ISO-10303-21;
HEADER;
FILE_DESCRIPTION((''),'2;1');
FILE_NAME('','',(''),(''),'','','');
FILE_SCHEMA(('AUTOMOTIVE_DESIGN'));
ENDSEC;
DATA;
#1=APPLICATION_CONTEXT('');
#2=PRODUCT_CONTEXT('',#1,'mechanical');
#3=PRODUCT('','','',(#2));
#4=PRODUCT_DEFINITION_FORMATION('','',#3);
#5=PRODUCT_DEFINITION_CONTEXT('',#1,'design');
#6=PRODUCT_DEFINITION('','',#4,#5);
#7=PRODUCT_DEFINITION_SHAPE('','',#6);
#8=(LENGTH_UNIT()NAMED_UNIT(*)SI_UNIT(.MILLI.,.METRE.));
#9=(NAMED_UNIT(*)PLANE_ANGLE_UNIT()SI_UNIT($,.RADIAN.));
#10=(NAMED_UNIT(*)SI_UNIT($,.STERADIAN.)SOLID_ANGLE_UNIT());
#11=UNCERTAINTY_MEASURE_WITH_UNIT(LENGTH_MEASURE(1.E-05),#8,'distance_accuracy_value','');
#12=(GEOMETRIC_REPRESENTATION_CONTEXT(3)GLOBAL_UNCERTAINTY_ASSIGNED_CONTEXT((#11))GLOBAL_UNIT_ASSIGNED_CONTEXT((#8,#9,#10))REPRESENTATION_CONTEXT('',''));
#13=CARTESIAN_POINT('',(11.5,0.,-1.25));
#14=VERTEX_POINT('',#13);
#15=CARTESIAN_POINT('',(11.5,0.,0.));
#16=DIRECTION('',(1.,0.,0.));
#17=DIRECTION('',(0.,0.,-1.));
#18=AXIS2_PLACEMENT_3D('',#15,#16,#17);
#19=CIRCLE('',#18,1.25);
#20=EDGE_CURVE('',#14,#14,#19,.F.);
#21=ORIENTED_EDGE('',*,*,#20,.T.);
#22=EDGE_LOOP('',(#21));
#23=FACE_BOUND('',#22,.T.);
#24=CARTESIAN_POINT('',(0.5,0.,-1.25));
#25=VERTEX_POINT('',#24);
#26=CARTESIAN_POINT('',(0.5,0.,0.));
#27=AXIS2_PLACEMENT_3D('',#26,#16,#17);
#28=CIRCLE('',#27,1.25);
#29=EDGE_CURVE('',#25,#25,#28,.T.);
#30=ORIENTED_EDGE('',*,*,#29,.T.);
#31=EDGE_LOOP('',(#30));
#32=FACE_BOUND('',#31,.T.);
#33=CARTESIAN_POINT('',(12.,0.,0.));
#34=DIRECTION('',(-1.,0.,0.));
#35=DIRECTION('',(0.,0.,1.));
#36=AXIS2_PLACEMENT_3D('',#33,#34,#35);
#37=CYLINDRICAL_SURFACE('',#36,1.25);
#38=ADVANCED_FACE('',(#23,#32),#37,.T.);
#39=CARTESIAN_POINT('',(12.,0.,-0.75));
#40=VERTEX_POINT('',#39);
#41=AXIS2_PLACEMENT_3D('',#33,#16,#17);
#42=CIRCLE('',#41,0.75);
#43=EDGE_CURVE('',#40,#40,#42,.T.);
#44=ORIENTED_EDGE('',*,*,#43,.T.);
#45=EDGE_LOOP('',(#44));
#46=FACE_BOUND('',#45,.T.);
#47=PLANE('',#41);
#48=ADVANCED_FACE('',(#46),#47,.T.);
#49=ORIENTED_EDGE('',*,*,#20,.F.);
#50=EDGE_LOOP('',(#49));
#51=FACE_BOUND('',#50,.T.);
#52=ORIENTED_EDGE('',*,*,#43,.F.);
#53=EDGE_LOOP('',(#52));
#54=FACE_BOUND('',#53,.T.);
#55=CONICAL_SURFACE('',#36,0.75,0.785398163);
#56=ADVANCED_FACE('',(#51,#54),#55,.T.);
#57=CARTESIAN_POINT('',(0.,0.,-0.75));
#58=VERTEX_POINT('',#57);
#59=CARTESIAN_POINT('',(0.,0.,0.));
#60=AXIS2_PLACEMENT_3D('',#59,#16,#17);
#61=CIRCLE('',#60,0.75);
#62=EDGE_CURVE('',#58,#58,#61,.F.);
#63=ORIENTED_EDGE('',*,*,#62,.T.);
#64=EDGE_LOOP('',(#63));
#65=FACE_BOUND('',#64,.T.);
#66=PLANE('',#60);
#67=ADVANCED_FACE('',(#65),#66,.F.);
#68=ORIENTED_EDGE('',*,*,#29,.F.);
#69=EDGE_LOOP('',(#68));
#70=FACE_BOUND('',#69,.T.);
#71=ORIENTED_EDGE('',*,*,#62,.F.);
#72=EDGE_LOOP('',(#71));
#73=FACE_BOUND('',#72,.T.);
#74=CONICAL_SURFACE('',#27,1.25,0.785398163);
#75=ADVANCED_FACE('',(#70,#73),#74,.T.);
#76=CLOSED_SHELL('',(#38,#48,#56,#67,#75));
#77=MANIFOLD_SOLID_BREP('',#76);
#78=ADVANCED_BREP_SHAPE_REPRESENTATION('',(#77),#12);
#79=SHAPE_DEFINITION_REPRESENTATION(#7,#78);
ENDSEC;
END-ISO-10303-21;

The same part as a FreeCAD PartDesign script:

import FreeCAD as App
import Part
import Sketcher
from FreeCAD import Vector
Q = App.Units.Quantity


def edges_at(feature, points):
    """Names of the edges that pass closest to the given points."""
    edges = feature.Shape.Edges
    near = lambda p: min(range(len(edges)), key=lambda i: edges[i].distToShape(Part.Vertex(*p))[0])
    return sorted({f"Edge{near(p) + 1}" for p in points})

doc = App.newDocument("Part")
body = doc.addObject("PartDesign::Body", "Body")

sketch1 = body.newObject("Sketcher::SketchObject", "Sketch")
sketch1.AttachmentSupport = (doc.getObject("YZ_Plane"), [""])
sketch1.MapMode = "FlatFace"
sketch1.addGeometry(Part.Circle(Vector(0, 0, 0), Vector(0, 0, 1), 1.2), False)
sketch1.addConstraint([
    Sketcher.Constraint("Coincident", 0, 3, -1, 1),
    Sketcher.Constraint("Diameter", 0, Q("2.5 mm")),
])
pad1 = body.newObject("PartDesign::Pad", "Pad")
pad1.Profile = sketch1
pad1.Length = 12
doc.recompute()

chamfer = body.newObject("PartDesign::Chamfer", "Chamfer")
chamfer.Base = (pad1, edges_at(pad1, [(0, 0, 1.25), (12, 0, 1.25)]))
chamfer.Size = 0.5

doc.recompute()
